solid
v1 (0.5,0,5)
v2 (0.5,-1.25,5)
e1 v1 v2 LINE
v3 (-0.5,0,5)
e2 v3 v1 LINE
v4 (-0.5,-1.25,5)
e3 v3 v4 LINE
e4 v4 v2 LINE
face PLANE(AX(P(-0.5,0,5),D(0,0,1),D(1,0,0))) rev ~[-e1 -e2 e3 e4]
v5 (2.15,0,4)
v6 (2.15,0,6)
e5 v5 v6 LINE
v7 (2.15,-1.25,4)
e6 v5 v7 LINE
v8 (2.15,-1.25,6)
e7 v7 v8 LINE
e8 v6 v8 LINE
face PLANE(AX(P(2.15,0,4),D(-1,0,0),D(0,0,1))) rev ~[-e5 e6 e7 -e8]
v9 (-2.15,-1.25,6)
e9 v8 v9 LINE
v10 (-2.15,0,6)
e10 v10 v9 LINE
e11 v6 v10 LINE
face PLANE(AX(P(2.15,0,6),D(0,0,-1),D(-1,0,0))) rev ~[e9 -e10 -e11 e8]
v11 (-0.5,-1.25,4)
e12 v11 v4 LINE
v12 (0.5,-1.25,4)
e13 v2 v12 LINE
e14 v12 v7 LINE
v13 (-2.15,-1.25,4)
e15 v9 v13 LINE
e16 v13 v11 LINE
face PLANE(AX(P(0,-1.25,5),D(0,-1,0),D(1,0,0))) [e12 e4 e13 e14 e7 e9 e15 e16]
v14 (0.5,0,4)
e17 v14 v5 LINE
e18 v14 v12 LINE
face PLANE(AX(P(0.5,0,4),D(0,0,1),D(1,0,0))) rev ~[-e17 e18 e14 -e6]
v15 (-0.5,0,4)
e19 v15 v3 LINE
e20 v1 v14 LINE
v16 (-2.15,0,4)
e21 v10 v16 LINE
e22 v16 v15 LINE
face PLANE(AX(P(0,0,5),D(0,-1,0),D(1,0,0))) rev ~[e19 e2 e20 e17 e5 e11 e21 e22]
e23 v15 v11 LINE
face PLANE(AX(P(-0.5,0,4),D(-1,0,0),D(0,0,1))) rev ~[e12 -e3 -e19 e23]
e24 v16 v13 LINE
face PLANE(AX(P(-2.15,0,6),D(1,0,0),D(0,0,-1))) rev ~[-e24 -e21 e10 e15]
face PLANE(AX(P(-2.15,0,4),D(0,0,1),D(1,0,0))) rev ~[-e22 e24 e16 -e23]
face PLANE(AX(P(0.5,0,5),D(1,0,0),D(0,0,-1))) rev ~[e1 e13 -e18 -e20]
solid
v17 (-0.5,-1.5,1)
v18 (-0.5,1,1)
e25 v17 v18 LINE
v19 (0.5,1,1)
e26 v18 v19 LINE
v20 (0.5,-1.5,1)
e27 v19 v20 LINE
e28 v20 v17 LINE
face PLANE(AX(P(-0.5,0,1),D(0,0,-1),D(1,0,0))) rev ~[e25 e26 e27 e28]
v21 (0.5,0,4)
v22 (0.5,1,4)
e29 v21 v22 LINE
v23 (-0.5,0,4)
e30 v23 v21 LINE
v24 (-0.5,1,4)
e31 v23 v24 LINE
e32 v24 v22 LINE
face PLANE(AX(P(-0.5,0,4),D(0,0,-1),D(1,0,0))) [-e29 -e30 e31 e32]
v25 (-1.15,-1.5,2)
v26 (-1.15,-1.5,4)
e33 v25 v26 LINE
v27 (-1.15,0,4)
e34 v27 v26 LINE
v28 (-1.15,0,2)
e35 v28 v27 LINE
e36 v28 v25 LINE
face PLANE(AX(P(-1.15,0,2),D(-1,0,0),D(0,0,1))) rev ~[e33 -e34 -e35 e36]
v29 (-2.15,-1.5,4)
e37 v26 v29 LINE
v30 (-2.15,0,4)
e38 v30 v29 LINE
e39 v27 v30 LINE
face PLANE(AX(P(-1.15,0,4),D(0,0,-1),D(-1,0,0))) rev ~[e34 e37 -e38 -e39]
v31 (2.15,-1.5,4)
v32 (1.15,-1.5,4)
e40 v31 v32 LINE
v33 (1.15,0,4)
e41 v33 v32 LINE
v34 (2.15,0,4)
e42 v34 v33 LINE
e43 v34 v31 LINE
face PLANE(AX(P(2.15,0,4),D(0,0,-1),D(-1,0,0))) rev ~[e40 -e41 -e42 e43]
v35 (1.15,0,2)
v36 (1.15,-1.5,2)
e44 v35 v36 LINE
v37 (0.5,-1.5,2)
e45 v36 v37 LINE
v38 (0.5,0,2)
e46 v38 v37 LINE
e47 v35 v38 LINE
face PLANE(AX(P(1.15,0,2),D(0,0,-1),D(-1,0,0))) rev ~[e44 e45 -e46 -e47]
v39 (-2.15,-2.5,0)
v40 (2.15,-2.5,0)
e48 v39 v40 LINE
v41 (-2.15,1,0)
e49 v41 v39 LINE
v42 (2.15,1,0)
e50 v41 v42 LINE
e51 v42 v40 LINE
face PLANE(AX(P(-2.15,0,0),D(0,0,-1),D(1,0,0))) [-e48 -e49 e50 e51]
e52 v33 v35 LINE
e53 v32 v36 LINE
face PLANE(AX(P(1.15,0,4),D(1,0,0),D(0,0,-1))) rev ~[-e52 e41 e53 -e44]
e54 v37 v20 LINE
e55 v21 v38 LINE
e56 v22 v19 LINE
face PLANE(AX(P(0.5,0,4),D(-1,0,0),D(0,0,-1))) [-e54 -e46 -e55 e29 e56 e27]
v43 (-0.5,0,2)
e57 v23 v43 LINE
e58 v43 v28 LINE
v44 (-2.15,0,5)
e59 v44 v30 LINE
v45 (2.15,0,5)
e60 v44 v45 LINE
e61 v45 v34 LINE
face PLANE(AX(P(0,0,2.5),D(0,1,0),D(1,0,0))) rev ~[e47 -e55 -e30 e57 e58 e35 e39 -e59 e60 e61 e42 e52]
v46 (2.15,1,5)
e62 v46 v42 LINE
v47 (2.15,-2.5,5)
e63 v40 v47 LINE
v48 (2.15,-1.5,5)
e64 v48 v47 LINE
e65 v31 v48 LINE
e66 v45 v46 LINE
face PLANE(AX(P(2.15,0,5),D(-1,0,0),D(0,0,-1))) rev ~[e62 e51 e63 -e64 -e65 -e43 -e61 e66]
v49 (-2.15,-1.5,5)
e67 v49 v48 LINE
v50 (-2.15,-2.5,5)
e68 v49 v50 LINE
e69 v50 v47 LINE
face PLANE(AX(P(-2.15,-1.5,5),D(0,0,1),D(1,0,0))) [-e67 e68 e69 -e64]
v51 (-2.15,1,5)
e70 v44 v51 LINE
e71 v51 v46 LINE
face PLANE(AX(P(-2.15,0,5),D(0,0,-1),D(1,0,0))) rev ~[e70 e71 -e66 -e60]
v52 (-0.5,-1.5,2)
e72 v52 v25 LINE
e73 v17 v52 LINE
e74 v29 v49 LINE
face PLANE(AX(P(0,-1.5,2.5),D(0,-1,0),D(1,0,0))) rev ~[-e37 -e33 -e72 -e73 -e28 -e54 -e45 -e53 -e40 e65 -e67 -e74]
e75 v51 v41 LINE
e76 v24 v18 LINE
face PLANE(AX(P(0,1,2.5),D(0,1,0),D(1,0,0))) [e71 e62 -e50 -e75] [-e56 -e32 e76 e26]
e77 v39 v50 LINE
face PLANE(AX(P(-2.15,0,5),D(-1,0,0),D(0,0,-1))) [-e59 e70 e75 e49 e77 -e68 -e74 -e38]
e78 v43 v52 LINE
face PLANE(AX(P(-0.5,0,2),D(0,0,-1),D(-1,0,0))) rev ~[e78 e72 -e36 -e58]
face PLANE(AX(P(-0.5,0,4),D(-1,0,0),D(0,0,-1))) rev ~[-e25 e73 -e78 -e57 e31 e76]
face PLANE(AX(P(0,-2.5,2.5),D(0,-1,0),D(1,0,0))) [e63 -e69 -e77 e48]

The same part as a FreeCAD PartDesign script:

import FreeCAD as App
import Part
import Sketcher

V = App.Vector
Q = App.Units.Quantity

doc = App.newDocument("Part")
params = doc.addObject("Spreadsheet::Sheet", "Params")
for row, (alias, value) in enumerate([
    ("sketch1_width", "1 mm"),
    ("sketch1_height", "4 mm"),
    ("sketch1_height2", "2 mm"),
    ("sketch1_width2", "4.3 mm"),
    ("pad1_length", "1.5 mm"),
    ("sketch2_height", "5 mm"),
    ("sketch2_width", "4.3 mm"),
    ("pad2_length", "1 mm"),
    ("sketch3_width", "1 mm"),
    ("sketch3_height", "5 mm"),
    ("sketch3_height2", "3 mm"),
    ("sketch3_width2", "4.3 mm"),
    ("pad3_length", "1 mm"),
    ("sketch4_width", "1 mm"),
    ("sketch4_height", "2 mm"),
    ("sketch4_width2", "4.3 mm"),
    ("pad4_length", "1.25 mm"),
], start=1):
    params.set(f"A{row}", alias)
    params.set(f"B{row}", "=" + value)
    params.setAlias(f"B{row}", alias)

body = doc.addObject("PartDesign::Body", "Body")

# Sketch on XZ plane
sketch1 = body.newObject("Sketcher::SketchObject", "Sketch")
sketch1.AttachmentSupport = (doc.getObject("XZ_Plane"), [""])
sketch1.MapMode = "FlatFace"
sketch1.addGeometry([
    Part.LineSegment(V(-2.1, 4, 0), V(-2.1, 0, 0)),  # 0
    Part.LineSegment(V(-2.1, 0, 0), V(2.1, 0, 0)),  # 1
    Part.LineSegment(V(2.1, 0, 0), V(2.1, 4, 0)),  # 2
    Part.LineSegment(V(2.1, 4, 0), V(1.1, 4, 0)),  # 3
    Part.LineSegment(V(1.1, 4, 0), V(1.1, 2, 0)),  # 4
    Part.LineSegment(V(1.1, 2, 0), V(0.5, 2, 0)),  # 5
    Part.LineSegment(V(0.5, 2, 0), V(0.5, 1, 0)),  # 6
    Part.LineSegment(V(0.5, 1, 0), V(-0.5, 1, 0)),  # 7
    Part.LineSegment(V(-0.5, 1, 0), V(-0.5, 2, 0)),  # 8
    Part.LineSegment(V(-0.5, 2, 0), V(-1.1, 2, 0)),  # 9
    Part.LineSegment(V(-1.1, 2, 0), V(-1.1, 4, 0)),  # 10
    Part.LineSegment(V(-1.1, 4, 0), V(-2.1, 4, 0)),  # 11
], False)
sketch1.addConstraint([
    Sketcher.Constraint("Coincident", 0, 2, 1, 1),
    Sketcher.Constraint("Coincident", 1, 2, 2, 1),
    Sketcher.Constraint("Coincident", 2, 2, 3, 1),
    Sketcher.Constraint("Coincident", 3, 2, 4, 1),
    Sketcher.Constraint("Coincident", 4, 2, 5, 1),
    Sketcher.Constraint("Coincident", 5, 2, 6, 1),
    Sketcher.Constraint("Coincident", 6, 2, 7, 1),
    Sketcher.Constraint("Coincident", 7, 2, 8, 1),
    Sketcher.Constraint("Coincident", 8, 2, 9, 1),
    Sketcher.Constraint("Coincident", 9, 2, 10, 1),
    Sketcher.Constraint("Coincident", 10, 2, 11, 1),
    Sketcher.Constraint("Coincident", 11, 2, 0, 1),
    Sketcher.Constraint("Vertical", 0),
    Sketcher.Constraint("Horizontal", 1),
    Sketcher.Constraint("Vertical", 2),
    Sketcher.Constraint("Horizontal", 3),
    Sketcher.Constraint("Vertical", 4),
    Sketcher.Constraint("Horizontal", 5),
    Sketcher.Constraint("Vertical", 6),
    Sketcher.Constraint("Horizontal", 7),
    Sketcher.Constraint("Vertical", 8),
    Sketcher.Constraint("Horizontal", 9),
    Sketcher.Constraint("Vertical", 10),
    Sketcher.Constraint("Horizontal", 11),
    Sketcher.Constraint("Symmetric", 0, 2, 1, 2, -1, 1),
    Sketcher.Constraint("Symmetric", 5, 2, 8, 2, -2),
    Sketcher.Constraint("Symmetric", 3, 2, 10, 2, -2),
    Sketcher.Constraint("Equal", 3, 7),
    Sketcher.Constraint("Equal", 11, 6),
    Sketcher.Constraint("DistanceX", 3, 2, 3, 1, Q("1 mm")),
    Sketcher.Constraint("DistanceY", 0, 2, 0, 1, Q("4 mm")),
    Sketcher.Constraint("DistanceY", 4, 2, 4, 1, Q("2 mm")),
    Sketcher.Constraint("DistanceX", 1, 1, 1, 2, Q("4.3 mm")),
])
sketch1.setExpression("Constraints[29]", "Params.sketch1_width")
sketch1.setExpression("Constraints[30]", "Params.sketch1_height")
sketch1.setExpression("Constraints[31]", "Params.sketch1_height2")
sketch1.setExpression("Constraints[32]", "Params.sketch1_width2")
pad1 = body.newObject("PartDesign::Pad", "Pad")
pad1.Profile = sketch1
pad1.setExpression("Length", "Params.pad1_length")

# Sketch on XZ plane
sketch2 = body.newObject("Sketcher::SketchObject", "Sketch001")
sketch2.AttachmentSupport = (doc.getObject("XZ_Plane"), [""])
sketch2.MapMode = "FlatFace"
sketch2.AttachmentOffset = App.Placement(V(0, 0, 1.5), App.Rotation())
sketch2.addGeometry([
    Part.LineSegment(V(-2.1, 5, 0), V(-2.1, 0, 0)),
    Part.LineSegment(V(-2.1, 0, 0), V(2.1, 0, 0)),
    Part.LineSegment(V(2.1, 0, 0), V(2.1, 5, 0)),
    Part.LineSegment(V(2.1, 5, 0), V(-2.1, 5, 0)),
], False)
sketch2.addConstraint([
    Sketcher.Constraint("Coincident", 0, 2, 1, 1),
    Sketcher.Constraint("Coincident", 1, 2, 2, 1),
    Sketcher.Constraint("Coincident", 2, 2, 3, 1),
    Sketcher.Constraint("Coincident", 3, 2, 0, 1),
    Sketcher.Constraint("Vertical", 0),
    Sketcher.Constraint("Horizontal", 1),
    Sketcher.Constraint("Vertical", 2),
    Sketcher.Constraint("Horizontal", 3),
    Sketcher.Constraint("Symmetric", 0, 2, 1, 2, -1, 1),
    Sketcher.Constraint("DistanceY", 0, 2, 0, 1, Q("5 mm")),
    Sketcher.Constraint("DistanceX", 1, 1, 1, 2, Q("4.3 mm")),
])
sketch2.setExpression("Constraints[9]", "Params.sketch2_height")
sketch2.setExpression("Constraints[10]", "Params.sketch2_width")
pad2 = body.newObject("PartDesign::Pad", "Pad001")
pad2.Profile = sketch2
pad2.setExpression("Length", "Params.pad2_length")

# Sketch on XZ plane
sketch3 = body.newObject("Sketcher::SketchObject", "Sketch002")
sketch3.AttachmentSupport = (doc.getObject("XZ_Plane"), [""])
sketch3.MapMode = "FlatFace"
sketch3.addGeometry([
    Part.LineSegment(V(-2.1, 0, 0), V(-2.1, 5, 0)),  # 0
    Part.LineSegment(V(-2.1, 5, 0), V(2.1, 5, 0)),  # 1
    Part.LineSegment(V(2.1, 5, 0), V(2.1, 0, 0)),  # 2
    Part.LineSegment(V(2.1, 0, 0), V(-2.1, 0, 0)),  # 3
    Part.LineSegment(V(0.5, 4, 0), V(-0.5, 4, 0)),  # 4
    Part.LineSegment(V(-0.5, 4, 0), V(-0.5, 1, 0)),  # 5
    Part.LineSegment(V(-0.5, 1, 0), V(0.5, 1, 0)),  # 6
    Part.LineSegment(V(0.5, 1, 0), V(0.5, 4, 0)),  # 7
], False)
sketch3.addConstraint([
    Sketcher.Constraint("Coincident", 0, 2, 1, 1),
    Sketcher.Constraint("Coincident", 1, 2, 2, 1),
    Sketcher.Constraint("Coincident", 2, 2, 3, 1),
    Sketcher.Constraint("Coincident", 3, 2, 0, 1),
    Sketcher.Constraint("Coincident", 4, 2, 5, 1),
    Sketcher.Constraint("Coincident", 5, 2, 6, 1),
    Sketcher.Constraint("Coincident", 6, 2, 7, 1),
    Sketcher.Constraint("Coincident", 7, 2, 4, 1),
    Sketcher.Constraint("Vertical", 0),
    Sketcher.Constraint("Horizontal", 1),
    Sketcher.Constraint("Vertical", 2),
    Sketcher.Constraint("Horizontal", 3),
    Sketcher.Constraint("Horizontal", 4),
    Sketcher.Constraint("Vertical", 5),
    Sketcher.Constraint("Horizontal", 6),
    Sketcher.Constraint("Vertical", 7),
    Sketcher.Constraint("Symmetric", 2, 2, 3, 2, -1, 1),
    Sketcher.Constraint("DistanceX", 4, 2, 4, 1, Q("1 mm")),
    Sketcher.Constraint("DistanceY", 0, 1, 0, 2, Q("5 mm")),
    Sketcher.Constraint("DistanceY", 5, 2, 5, 1, Q("3 mm")),
    Sketcher.Constraint("DistanceX", 1, 1, 1, 2, Q("4.3 mm")),
    Sketcher.Constraint("DistanceY", -1, 1, 4, 2, Q("4 mm")),
    Sketcher.Constraint("DistanceX", 4, 2, -1, 1, Q("0.5 mm")),
])
sketch3.setExpression("Constraints[17]", "Params.sketch3_width")
sketch3.setExpression("Constraints[18]", "Params.sketch3_height")
sketch3.setExpression("Constraints[19]", "Params.sketch3_height2")
sketch3.setExpression("Constraints[20]", "Params.sketch3_width2")
pad3 = body.newObject("PartDesign::Pad", "Pad002")
pad3.Profile = sketch3
pad3.setExpression("Length", "Params.pad3_length")
pad3.Reversed = True
body2 = doc.addObject("PartDesign::Body", "Body001")

# Sketch on XZ plane
sketch4 = body2.newObject("Sketcher::SketchObject", "Sketch003")
sketch4.AttachmentSupport = (doc.getObject("XZ_Plane001"), [""])
sketch4.MapMode = "FlatFace"
sketch4.addGeometry([
    Part.LineSegment(V(-2.1, 6, 0), V(-2.1, 4, 0)),  # 0
    Part.LineSegment(V(-2.1, 4, 0), V(-0.5, 4, 0)),  # 1
    Part.LineSegment(V(-0.5, 4, 0), V(-0.5, 5, 0)),  # 2
    Part.LineSegment(V(-0.5, 5, 0), V(0.5, 5, 0)),  # 3
    Part.LineSegment(V(0.5, 5, 0), V(0.5, 4, 0)),  # 4
    Part.LineSegment(V(0.5, 4, 0), V(2.1, 4, 0)),  # 5
    Part.LineSegment(V(2.1, 4, 0), V(2.1, 6, 0)),  # 6
    Part.LineSegment(V(2.1, 6, 0), V(-2.1, 6, 0)),  # 7
], False)
sketch4.addConstraint([
    Sketcher.Constraint("Coincident", 0, 2, 1, 1),
    Sketcher.Constraint("Coincident", 1, 2, 2, 1),
    Sketcher.Constraint("Coincident", 2, 2, 3, 1),
    Sketcher.Constraint("Coincident", 3, 2, 4, 1),
    Sketcher.Constraint("Coincident", 4, 2, 5, 1),
    Sketcher.Constraint("Coincident", 5, 2, 6, 1),
    Sketcher.Constraint("Coincident", 6, 2, 7, 1),
    Sketcher.Constraint("Coincident", 7, 2, 0, 1),
    Sketcher.Constraint("Vertical", 0),
    Sketcher.Constraint("Horizontal", 1),
    Sketcher.Constraint("Vertical", 2),
    Sketcher.Constraint("Horizontal", 3),
    Sketcher.Constraint("Vertical", 4),
    Sketcher.Constraint("Horizontal", 5),
    Sketcher.Constraint("Vertical", 6),
    Sketcher.Constraint("Horizontal", 7),
    Sketcher.Constraint("Symmetric", 1, 2, 4, 2, -2),
    Sketcher.Constraint("Equal", 1, 5),
    Sketcher.Constraint("Equal", 3, 2),
    Sketcher.Constraint("DistanceX", 3, 1, 3, 2, Q("1 mm")),
    Sketcher.Constraint("DistanceY", 0, 2, 0, 1, Q("2 mm")),
    Sketcher.Constraint("DistanceX", 7, 2, 7, 1, Q("4.3 mm")),
    Sketcher.Constraint("DistanceY", -1, 1, 0, 2, Q("4 mm")),
])
sketch4.setExpression("Constraints[19]", "Params.sketch4_width")
sketch4.setExpression("Constraints[20]", "Params.sketch4_height")
sketch4.setExpression("Constraints[21]", "Params.sketch4_width2")
pad4 = body2.newObject("PartDesign::Pad", "Pad003")
pad4.Profile = sketch4
pad4.setExpression("Length", "Params.pad4_length")

doc.recompute()
